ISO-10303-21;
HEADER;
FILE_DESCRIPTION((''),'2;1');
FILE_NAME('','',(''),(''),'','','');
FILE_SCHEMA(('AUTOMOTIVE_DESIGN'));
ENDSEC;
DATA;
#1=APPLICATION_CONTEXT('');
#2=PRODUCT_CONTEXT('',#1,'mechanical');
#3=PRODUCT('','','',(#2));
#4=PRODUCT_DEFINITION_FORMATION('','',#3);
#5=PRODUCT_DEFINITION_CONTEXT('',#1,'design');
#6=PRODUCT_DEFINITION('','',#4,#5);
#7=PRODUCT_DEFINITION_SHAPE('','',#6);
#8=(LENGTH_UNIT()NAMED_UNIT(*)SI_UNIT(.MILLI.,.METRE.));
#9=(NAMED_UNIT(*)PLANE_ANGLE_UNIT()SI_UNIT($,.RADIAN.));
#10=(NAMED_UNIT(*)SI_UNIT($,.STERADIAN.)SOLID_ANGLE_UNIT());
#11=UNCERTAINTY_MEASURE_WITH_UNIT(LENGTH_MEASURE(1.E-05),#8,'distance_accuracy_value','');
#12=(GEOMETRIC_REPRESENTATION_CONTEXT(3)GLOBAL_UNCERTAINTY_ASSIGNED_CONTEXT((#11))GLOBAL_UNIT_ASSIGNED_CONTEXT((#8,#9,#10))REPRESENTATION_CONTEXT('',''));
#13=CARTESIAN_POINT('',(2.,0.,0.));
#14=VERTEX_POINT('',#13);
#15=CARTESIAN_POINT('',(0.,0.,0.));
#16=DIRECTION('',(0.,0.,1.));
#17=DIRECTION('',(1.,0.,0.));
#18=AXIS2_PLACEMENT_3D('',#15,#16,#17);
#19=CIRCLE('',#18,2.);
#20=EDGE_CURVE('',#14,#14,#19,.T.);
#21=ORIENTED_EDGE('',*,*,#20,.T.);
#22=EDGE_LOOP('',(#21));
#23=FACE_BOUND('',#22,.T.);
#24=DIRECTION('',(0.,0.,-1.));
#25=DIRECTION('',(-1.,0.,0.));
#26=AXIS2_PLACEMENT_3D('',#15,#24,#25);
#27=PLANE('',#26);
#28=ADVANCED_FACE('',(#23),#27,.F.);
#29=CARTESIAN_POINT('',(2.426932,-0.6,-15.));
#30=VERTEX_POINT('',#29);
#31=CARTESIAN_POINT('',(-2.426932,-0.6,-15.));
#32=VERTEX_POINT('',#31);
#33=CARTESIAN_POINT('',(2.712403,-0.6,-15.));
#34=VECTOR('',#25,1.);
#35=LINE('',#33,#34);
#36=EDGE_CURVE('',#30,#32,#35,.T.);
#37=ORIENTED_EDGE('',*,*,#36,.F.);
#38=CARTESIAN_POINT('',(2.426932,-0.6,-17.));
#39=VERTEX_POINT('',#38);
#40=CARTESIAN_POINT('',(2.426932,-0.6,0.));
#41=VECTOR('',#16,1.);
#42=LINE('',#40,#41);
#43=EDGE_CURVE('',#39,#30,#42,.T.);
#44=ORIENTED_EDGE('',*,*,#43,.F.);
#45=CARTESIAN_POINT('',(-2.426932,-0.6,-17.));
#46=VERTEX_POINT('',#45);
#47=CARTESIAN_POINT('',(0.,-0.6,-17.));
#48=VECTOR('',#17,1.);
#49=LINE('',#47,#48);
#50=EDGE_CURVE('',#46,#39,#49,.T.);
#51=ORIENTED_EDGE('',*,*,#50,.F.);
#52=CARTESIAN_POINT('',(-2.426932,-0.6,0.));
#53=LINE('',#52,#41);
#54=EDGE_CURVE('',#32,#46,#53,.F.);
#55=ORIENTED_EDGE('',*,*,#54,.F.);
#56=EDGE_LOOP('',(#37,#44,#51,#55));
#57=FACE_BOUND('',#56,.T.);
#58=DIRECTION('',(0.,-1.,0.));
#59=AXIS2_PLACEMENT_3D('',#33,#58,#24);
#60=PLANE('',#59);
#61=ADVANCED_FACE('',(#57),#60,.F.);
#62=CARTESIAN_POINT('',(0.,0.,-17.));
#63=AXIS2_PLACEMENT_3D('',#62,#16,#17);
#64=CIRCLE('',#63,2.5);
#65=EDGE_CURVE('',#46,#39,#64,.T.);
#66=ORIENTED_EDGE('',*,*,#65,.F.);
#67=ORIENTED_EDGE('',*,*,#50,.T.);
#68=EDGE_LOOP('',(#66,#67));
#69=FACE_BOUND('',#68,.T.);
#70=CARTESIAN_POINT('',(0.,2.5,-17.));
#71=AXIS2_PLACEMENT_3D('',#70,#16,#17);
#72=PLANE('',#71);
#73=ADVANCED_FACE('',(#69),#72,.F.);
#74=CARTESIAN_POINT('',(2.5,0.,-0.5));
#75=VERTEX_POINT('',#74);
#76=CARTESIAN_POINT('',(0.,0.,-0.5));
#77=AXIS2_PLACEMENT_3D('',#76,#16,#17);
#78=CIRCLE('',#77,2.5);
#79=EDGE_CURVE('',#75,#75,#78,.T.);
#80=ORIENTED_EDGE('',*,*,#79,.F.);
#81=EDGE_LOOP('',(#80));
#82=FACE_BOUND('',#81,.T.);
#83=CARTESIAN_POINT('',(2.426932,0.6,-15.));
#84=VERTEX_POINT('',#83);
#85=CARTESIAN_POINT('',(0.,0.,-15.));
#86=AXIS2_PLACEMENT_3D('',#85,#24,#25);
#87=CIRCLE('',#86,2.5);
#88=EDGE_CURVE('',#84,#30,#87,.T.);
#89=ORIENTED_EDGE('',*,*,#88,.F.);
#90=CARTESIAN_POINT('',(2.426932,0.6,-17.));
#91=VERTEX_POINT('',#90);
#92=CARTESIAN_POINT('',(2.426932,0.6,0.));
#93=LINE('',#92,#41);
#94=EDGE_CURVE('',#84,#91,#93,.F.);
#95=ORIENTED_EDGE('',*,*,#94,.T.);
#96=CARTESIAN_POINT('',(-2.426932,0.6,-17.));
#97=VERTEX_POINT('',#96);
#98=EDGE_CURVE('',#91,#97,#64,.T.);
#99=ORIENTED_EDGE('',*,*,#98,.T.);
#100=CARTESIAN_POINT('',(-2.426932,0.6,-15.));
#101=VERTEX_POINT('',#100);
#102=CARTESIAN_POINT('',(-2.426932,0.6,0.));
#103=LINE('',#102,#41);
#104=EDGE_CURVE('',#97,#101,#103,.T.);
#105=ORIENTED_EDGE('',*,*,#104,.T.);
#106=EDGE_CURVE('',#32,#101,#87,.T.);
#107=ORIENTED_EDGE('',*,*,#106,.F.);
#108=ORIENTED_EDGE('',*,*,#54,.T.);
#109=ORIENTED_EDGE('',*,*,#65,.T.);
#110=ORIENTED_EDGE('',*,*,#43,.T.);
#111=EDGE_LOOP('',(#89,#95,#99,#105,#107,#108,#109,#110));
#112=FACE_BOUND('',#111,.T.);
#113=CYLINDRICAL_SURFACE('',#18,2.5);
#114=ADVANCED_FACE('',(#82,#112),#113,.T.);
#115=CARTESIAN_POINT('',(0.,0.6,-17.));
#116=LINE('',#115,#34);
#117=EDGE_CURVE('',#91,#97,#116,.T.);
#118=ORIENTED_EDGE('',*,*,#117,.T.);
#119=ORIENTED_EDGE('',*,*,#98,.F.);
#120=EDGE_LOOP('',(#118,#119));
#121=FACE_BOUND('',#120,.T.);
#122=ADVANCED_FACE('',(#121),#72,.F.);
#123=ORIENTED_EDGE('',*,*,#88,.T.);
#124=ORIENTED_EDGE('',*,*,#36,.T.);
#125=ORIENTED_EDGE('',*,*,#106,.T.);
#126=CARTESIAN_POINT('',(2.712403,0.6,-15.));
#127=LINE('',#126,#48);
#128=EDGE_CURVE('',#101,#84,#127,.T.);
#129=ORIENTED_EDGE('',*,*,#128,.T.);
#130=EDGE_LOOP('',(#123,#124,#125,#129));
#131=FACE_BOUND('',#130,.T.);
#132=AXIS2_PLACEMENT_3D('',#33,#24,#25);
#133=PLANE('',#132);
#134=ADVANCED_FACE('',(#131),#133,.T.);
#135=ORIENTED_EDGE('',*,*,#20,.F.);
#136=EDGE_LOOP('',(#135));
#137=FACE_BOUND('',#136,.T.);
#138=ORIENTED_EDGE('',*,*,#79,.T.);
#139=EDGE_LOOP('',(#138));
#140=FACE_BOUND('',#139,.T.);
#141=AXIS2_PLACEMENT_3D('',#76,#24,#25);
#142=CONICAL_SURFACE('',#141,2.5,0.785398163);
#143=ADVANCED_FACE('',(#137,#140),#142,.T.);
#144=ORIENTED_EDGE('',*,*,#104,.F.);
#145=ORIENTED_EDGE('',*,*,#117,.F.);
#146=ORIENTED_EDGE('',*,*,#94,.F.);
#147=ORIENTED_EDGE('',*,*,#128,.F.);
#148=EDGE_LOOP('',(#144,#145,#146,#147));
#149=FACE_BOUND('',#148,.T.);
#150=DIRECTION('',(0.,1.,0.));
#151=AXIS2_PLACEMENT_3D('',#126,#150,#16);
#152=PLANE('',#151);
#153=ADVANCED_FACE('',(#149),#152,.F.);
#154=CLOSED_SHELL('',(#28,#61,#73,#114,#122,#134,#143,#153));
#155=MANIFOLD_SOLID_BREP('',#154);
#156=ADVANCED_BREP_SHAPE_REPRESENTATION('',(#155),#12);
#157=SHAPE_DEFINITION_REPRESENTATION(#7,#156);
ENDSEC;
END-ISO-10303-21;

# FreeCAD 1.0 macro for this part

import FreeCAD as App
import Part
import Sketcher
Q = App.Units.Quantity

doc = App.newDocument("Part")
body = doc.addObject("PartDesign::Body", "Body")

# Sketch on YZ plane
sketch1 = doc.addObject("Sketcher::SketchObject", "Sketch")
body.addObject(sketch1)
sketch1.AttachmentSupport = (doc.YZ_Plane, [""])
sketch1.MapMode = "FlatFace"
sketch1.addGeometry(Part.LineSegment(App.Vector(2, 0, 0), App.Vector(0, 0, 0)), False)
sketch1.addGeometry(Part.LineSegment(App.Vector(0, 0, 0), App.Vector(0, -17, 0)), False)
sketch1.addGeometry(Part.LineSegment(App.Vector(0, -17, 0), App.Vector(2.5, -17, 0)), False)
sketch1.addGeometry(Part.LineSegment(App.Vector(2.5, -17, 0), App.Vector(2.5, -0.5, 0)), False)
sketch1.addGeometry(Part.LineSegment(App.Vector(2.5, -0.5, 0), App.Vector(2, 0, 0)), False)
sketch1.addConstraint(Sketcher.Constraint("Coincident", 0, 2, 1, 1))
sketch1.addConstraint(Sketcher.Constraint("Coincident", 1, 2, 2, 1))
sketch1.addConstraint(Sketcher.Constraint("Coincident", 2, 2, 3, 1))
sketch1.addConstraint(Sketcher.Constraint("Coincident", 3, 2, 4, 1))
sketch1.addConstraint(Sketcher.Constraint("Coincident", 4, 2, 0, 1))
sketch1.addConstraint(Sketcher.Constraint("Horizontal", 0))
sketch1.addConstraint(Sketcher.Constraint("Vertical", 1))
sketch1.addConstraint(Sketcher.Constraint("Horizontal", 2))
sketch1.addConstraint(Sketcher.Constraint("Vertical", 3))
sketch1.addConstraint(Sketcher.Constraint("Coincident", 0, 2, -1, 1))
sketch1.addConstraint(Sketcher.Constraint("DistanceX", 0, 2, 0, 1, Q("2 mm")))
sketch1.addConstraint(Sketcher.Constraint("DistanceY", 1, 2, 1, 1, Q("17 mm")))
sketch1.addConstraint(Sketcher.Constraint("Angle", 4, Q("135 deg")))
sketch1.addConstraint(Sketcher.Constraint("DistanceX", 2, 1, 2, 2, Q("2.5 mm")))
revolution = doc.addObject("PartDesign::Revolution", "Revolution")
body.addObject(revolution)
revolution.Profile = sketch1
revolution.ReferenceAxis = (sketch1, ["V_Axis"])
revolution.Angle = 360

# Sketch on XY plane
sketch2 = doc.addObject("Sketcher::SketchObject", "Sketch001")
body.addObject(sketch2)
sketch2.AttachmentSupport = (doc.XY_Plane, [""])
sketch2.MapMode = "FlatFace"
sketch2.AttachmentOffset = App.Placement(App.Vector(0, 0, -17), App.Rotation())
sketch2.addGeometry(Part.LineSegment(App.Vector(2.7, 0.6, 0), App.Vector(2.7, -0.6, 0)), False)
sketch2.addGeometry(Part.LineSegment(App.Vector(2.7, -0.6, 0), App.Vector(-2.7, -0.6, 0)), False)
sketch2.addGeometry(Part.LineSegment(App.Vector(-2.7, -0.6, 0), App.Vector(-2.7, 0.6, 0)), False)
sketch2.addGeometry(Part.LineSegment(App.Vector(-2.7, 0.6, 0), App.Vector(2.7, 0.6, 0)), False)
sketch2.addConstraint(Sketcher.Constraint("Coincident", 0, 2, 1, 1))
sketch2.addConstraint(Sketcher.Constraint("Coincident", 1, 2, 2, 1))
sketch2.addConstraint(Sketcher.Constraint("Coincident", 2, 2, 3, 1))
sketch2.addConstraint(Sketcher.Constraint("Coincident", 3, 2, 0, 1))
sketch2.addConstraint(Sketcher.Constraint("Vertical", 0))
sketch2.addConstraint(Sketcher.Constraint("Horizontal", 1))
sketch2.addConstraint(Sketcher.Constraint("Vertical", 2))
sketch2.addConstraint(Sketcher.Constraint("Horizontal", 3))
sketch2.addConstraint(Sketcher.Constraint("Symmetric", 0, 2, 2, 2, -1, 1))
sketch2.addConstraint(Sketcher.Constraint("DistanceY", 0, 2, 0, 1, Q("1.2 mm")))
sketch2.addConstraint(Sketcher.Constraint("DistanceX", 1, 2, 1, 1, Q("5.424806 mm")))
pocket1 = doc.addObject("PartDesign::Pocket", "Pocket")
body.addObject(pocket1)
pocket1.Profile = sketch2
pocket1.Length = 2
pocket1.Reversed = True

doc.recompute()
